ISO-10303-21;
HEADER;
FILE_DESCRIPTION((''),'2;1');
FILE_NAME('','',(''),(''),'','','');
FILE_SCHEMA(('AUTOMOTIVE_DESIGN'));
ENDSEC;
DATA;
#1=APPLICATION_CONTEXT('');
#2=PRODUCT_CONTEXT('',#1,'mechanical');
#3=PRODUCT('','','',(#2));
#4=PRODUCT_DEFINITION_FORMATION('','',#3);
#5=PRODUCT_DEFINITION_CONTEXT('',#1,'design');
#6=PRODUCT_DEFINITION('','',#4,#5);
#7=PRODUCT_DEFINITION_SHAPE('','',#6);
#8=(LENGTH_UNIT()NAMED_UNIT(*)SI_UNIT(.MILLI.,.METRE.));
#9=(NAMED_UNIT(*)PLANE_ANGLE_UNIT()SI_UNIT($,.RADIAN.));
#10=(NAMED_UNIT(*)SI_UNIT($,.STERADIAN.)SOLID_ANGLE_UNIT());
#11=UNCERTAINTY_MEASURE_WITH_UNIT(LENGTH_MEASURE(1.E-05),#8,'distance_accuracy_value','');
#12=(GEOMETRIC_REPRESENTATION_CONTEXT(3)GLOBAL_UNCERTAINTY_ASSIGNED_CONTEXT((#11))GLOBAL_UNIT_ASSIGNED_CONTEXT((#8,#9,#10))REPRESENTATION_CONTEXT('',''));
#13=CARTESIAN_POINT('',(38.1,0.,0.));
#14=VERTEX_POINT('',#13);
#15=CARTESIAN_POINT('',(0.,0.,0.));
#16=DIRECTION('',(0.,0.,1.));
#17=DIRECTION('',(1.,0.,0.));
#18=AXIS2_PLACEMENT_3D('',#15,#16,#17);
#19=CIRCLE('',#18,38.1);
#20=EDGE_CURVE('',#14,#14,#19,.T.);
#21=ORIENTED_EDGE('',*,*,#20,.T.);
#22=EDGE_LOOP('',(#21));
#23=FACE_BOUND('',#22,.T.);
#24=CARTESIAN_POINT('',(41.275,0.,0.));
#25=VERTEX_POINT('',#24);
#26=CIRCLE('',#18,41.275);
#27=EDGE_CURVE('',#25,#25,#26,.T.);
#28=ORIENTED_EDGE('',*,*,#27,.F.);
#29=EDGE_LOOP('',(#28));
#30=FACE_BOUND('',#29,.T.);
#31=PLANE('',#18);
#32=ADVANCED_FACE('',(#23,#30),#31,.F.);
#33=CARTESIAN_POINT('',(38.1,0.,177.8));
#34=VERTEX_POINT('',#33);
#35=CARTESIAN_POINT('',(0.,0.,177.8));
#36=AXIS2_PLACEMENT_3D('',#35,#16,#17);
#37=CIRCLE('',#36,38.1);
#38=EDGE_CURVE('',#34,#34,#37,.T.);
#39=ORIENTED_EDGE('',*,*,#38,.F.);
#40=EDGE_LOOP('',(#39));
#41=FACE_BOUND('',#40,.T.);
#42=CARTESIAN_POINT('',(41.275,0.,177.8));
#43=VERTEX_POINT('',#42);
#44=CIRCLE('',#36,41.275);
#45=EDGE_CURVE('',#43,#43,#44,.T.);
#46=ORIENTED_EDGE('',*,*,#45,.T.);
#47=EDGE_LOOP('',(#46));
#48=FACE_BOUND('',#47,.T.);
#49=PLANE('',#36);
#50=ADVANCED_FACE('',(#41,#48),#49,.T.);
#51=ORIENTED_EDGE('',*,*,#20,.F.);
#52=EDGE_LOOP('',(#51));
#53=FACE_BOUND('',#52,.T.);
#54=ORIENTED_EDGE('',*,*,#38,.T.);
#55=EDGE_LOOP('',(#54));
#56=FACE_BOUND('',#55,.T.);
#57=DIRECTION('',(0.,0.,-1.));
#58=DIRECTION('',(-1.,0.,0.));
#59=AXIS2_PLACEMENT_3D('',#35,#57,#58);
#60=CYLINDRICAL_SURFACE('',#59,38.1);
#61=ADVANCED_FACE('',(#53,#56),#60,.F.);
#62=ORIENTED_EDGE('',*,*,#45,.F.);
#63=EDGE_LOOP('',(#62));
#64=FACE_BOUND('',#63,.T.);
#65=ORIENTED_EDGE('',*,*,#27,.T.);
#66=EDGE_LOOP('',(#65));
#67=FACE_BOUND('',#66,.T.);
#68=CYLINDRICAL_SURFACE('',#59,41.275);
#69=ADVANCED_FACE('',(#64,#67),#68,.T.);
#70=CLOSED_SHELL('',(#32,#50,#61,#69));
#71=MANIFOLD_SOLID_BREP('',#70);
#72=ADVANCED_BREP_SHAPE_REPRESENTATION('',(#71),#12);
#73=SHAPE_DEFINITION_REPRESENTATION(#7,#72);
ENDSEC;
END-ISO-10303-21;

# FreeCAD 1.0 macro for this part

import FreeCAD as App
import Part
import Sketcher
Q = App.Units.Quantity

doc = App.newDocument("Part")
body = doc.addObject("PartDesign::Body", "Body")

# Sketch on XY plane
sketch1 = body.newObject("Sketcher::SketchObject", "Sketch")
sketch1.AttachmentSupport = (doc.getObject("XY_Plane"), [""])
sketch1.MapMode = "FlatFace"
sketch1.addGeometry([
    Part.Circle(App.Vector(0, 0, 0), App.Vector(0, 0, 1), 41),
    Part.Circle(App.Vector(0, 0, 0), App.Vector(0, 0, 1), 38),
], False)
sketch1.addConstraint([
    Sketcher.Constraint("Coincident", 0, 3, -1, 1),
    Sketcher.Constraint("Coincident", 1, 3, -1, 1),
    Sketcher.Constraint("Diameter", 1, Q("3 in")),
    Sketcher.Constraint("Diameter", 0, Q("3.25 in")),
])
pad1 = body.newObject("PartDesign::Pad", "Pad")
pad1.Profile = sketch1
pad1.Length = Q("7 in")

doc.recompute()
